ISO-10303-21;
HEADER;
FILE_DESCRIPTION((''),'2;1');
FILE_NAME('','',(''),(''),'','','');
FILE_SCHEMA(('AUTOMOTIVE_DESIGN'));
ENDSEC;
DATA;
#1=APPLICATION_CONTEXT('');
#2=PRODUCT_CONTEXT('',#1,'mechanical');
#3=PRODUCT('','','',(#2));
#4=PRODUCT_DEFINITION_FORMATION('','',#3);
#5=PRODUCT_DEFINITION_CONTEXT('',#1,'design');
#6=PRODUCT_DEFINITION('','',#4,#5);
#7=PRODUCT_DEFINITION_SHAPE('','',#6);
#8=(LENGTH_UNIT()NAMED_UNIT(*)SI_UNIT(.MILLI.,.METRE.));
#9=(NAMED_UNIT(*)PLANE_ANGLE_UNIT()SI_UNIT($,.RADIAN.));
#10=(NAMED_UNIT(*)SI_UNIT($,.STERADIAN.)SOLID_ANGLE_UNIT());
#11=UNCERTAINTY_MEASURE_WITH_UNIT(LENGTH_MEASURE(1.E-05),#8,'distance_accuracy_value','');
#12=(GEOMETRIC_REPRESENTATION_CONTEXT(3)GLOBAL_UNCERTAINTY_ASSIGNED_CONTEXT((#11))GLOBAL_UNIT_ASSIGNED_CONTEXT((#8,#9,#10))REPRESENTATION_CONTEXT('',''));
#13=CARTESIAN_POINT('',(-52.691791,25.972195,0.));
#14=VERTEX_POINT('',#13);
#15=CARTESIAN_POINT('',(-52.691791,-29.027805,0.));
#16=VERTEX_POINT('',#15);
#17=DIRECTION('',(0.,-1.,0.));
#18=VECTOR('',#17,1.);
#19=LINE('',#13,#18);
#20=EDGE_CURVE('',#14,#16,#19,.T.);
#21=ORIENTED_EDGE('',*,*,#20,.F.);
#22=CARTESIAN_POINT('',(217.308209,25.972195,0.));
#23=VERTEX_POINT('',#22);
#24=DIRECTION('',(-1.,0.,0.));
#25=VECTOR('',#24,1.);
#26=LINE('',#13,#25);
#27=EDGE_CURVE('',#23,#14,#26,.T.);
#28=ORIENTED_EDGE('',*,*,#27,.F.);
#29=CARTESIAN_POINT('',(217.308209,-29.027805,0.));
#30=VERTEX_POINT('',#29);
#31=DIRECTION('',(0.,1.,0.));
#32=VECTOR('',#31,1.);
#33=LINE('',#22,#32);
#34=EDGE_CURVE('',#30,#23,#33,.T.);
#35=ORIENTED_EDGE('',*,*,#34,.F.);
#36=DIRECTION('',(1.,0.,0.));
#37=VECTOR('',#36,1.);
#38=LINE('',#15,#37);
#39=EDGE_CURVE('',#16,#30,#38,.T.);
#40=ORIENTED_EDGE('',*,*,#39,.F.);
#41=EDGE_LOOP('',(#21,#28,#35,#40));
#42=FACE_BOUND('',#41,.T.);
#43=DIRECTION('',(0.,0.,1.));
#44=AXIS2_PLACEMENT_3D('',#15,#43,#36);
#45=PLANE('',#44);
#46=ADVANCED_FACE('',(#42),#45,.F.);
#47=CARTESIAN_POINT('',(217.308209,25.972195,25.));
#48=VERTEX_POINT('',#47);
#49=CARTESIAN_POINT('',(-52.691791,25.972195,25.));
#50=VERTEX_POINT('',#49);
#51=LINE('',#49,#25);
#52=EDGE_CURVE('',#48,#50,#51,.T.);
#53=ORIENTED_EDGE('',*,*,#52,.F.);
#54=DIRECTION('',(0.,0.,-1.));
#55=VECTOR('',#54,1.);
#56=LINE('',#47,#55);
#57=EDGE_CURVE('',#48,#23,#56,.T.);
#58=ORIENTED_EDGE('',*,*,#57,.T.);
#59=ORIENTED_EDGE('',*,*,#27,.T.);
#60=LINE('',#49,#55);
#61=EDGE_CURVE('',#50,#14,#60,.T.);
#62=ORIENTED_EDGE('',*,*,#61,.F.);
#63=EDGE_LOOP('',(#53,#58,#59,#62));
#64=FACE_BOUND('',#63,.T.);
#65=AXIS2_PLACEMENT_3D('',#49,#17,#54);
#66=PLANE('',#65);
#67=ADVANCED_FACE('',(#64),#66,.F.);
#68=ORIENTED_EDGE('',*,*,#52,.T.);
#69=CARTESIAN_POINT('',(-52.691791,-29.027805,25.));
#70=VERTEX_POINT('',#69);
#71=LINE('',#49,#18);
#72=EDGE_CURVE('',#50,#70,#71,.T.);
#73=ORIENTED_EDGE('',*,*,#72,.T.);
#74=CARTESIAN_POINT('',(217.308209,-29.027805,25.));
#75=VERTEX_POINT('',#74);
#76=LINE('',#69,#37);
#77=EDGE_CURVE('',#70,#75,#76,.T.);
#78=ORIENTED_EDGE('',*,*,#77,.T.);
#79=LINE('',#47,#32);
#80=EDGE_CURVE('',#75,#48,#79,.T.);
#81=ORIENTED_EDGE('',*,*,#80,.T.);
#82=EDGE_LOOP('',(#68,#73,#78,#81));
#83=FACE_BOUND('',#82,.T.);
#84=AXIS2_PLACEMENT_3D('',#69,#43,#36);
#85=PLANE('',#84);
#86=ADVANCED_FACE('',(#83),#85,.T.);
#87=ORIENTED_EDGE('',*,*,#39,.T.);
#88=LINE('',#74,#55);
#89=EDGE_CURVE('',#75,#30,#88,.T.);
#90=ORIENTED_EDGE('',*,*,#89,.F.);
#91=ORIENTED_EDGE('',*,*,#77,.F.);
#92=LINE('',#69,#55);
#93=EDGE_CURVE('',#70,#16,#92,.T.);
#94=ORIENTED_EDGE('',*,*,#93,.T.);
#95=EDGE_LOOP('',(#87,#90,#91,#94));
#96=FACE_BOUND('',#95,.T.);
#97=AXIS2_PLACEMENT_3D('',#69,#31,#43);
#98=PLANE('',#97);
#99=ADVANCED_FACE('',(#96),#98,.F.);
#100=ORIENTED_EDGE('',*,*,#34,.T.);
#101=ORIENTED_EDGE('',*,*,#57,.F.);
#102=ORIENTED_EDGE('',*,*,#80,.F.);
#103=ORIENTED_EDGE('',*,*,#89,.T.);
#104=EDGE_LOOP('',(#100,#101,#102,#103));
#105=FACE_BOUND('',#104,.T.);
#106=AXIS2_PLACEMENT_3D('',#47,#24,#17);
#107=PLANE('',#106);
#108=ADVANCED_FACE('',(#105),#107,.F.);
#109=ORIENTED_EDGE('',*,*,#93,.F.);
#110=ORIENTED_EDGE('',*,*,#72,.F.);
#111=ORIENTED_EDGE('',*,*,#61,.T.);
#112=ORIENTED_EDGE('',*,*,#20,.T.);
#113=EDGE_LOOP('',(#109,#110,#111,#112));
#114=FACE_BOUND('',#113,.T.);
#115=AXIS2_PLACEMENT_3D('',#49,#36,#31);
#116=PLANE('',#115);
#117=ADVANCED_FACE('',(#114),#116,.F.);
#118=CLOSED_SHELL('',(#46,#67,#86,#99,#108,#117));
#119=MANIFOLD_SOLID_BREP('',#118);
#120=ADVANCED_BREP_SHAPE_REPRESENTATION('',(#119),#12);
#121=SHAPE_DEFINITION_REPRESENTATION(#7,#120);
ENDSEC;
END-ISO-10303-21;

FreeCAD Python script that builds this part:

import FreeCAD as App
import Part
import Sketcher


def add_polygon(sketch, points):
    """Adds a closed chain of lines whose ends are joined by coincident constraints."""
    first, n = sketch.GeometryCount, len(points)
    for a, b in zip(points, points[1:] + points[:1]):
        sketch.addGeometry(Part.LineSegment(App.Vector(*a, 0), App.Vector(*b, 0)), False)
    for i in range(n):
        sketch.addConstraint(Sketcher.Constraint("Coincident", first + i, 2, first + (i + 1) % n, 1))

doc = App.newDocument("Part")
params = doc.addObject("Spreadsheet::Sheet", "Params")
for row, (alias, value) in enumerate([
    ("sketch1_width", "270 mm"),
    ("sketch1_height", "55 mm"),
    ("pad1_length", "25 mm"),
], start=1):
    params.set(f"A{row}", alias)
    params.set(f"B{row}", "=" + value)
    params.setAlias(f"B{row}", alias)

body = doc.addObject("PartDesign::Body", "Body")

# Sketch on XY plane
sketch1 = body.newObject("Sketcher::SketchObject", "Sketch")
sketch1.AttachmentSupport = (doc.getObject("XY_Plane"), [""])
sketch1.MapMode = "FlatFace"
add_polygon(sketch1, [(-52.691791, 25.972195), (-52.691791, -29.027805), (217.308209, -29.027805), (217.308209, 25.972195)])  # lines 0-3
sketch1.addConstraint([
    Sketcher.Constraint("Vertical", 0),
    Sketcher.Constraint("Horizontal", 1),
    Sketcher.Constraint("Vertical", 2),
    Sketcher.Constraint("Horizontal", 3),
    Sketcher.Constraint("DistanceX", 1, 1, 1, 2, 270.0),
    Sketcher.Constraint("DistanceY", 0, 2, 0, 1, 55.0),
    Sketcher.Constraint("DistanceX", 0, 2, -1, 1, 52.691791),
    Sketcher.Constraint("DistanceY", 0, 2, -1, 1, 29.027805),
])
sketch1.setExpression("Constraints[8]", "Params.sketch1_width")
sketch1.setExpression("Constraints[9]", "Params.sketch1_height")
pad1 = body.newObject("PartDesign::Pad", "Pad")
pad1.Profile = sketch1
pad1.setExpression("Length", "Params.pad1_length")

doc.recompute()
